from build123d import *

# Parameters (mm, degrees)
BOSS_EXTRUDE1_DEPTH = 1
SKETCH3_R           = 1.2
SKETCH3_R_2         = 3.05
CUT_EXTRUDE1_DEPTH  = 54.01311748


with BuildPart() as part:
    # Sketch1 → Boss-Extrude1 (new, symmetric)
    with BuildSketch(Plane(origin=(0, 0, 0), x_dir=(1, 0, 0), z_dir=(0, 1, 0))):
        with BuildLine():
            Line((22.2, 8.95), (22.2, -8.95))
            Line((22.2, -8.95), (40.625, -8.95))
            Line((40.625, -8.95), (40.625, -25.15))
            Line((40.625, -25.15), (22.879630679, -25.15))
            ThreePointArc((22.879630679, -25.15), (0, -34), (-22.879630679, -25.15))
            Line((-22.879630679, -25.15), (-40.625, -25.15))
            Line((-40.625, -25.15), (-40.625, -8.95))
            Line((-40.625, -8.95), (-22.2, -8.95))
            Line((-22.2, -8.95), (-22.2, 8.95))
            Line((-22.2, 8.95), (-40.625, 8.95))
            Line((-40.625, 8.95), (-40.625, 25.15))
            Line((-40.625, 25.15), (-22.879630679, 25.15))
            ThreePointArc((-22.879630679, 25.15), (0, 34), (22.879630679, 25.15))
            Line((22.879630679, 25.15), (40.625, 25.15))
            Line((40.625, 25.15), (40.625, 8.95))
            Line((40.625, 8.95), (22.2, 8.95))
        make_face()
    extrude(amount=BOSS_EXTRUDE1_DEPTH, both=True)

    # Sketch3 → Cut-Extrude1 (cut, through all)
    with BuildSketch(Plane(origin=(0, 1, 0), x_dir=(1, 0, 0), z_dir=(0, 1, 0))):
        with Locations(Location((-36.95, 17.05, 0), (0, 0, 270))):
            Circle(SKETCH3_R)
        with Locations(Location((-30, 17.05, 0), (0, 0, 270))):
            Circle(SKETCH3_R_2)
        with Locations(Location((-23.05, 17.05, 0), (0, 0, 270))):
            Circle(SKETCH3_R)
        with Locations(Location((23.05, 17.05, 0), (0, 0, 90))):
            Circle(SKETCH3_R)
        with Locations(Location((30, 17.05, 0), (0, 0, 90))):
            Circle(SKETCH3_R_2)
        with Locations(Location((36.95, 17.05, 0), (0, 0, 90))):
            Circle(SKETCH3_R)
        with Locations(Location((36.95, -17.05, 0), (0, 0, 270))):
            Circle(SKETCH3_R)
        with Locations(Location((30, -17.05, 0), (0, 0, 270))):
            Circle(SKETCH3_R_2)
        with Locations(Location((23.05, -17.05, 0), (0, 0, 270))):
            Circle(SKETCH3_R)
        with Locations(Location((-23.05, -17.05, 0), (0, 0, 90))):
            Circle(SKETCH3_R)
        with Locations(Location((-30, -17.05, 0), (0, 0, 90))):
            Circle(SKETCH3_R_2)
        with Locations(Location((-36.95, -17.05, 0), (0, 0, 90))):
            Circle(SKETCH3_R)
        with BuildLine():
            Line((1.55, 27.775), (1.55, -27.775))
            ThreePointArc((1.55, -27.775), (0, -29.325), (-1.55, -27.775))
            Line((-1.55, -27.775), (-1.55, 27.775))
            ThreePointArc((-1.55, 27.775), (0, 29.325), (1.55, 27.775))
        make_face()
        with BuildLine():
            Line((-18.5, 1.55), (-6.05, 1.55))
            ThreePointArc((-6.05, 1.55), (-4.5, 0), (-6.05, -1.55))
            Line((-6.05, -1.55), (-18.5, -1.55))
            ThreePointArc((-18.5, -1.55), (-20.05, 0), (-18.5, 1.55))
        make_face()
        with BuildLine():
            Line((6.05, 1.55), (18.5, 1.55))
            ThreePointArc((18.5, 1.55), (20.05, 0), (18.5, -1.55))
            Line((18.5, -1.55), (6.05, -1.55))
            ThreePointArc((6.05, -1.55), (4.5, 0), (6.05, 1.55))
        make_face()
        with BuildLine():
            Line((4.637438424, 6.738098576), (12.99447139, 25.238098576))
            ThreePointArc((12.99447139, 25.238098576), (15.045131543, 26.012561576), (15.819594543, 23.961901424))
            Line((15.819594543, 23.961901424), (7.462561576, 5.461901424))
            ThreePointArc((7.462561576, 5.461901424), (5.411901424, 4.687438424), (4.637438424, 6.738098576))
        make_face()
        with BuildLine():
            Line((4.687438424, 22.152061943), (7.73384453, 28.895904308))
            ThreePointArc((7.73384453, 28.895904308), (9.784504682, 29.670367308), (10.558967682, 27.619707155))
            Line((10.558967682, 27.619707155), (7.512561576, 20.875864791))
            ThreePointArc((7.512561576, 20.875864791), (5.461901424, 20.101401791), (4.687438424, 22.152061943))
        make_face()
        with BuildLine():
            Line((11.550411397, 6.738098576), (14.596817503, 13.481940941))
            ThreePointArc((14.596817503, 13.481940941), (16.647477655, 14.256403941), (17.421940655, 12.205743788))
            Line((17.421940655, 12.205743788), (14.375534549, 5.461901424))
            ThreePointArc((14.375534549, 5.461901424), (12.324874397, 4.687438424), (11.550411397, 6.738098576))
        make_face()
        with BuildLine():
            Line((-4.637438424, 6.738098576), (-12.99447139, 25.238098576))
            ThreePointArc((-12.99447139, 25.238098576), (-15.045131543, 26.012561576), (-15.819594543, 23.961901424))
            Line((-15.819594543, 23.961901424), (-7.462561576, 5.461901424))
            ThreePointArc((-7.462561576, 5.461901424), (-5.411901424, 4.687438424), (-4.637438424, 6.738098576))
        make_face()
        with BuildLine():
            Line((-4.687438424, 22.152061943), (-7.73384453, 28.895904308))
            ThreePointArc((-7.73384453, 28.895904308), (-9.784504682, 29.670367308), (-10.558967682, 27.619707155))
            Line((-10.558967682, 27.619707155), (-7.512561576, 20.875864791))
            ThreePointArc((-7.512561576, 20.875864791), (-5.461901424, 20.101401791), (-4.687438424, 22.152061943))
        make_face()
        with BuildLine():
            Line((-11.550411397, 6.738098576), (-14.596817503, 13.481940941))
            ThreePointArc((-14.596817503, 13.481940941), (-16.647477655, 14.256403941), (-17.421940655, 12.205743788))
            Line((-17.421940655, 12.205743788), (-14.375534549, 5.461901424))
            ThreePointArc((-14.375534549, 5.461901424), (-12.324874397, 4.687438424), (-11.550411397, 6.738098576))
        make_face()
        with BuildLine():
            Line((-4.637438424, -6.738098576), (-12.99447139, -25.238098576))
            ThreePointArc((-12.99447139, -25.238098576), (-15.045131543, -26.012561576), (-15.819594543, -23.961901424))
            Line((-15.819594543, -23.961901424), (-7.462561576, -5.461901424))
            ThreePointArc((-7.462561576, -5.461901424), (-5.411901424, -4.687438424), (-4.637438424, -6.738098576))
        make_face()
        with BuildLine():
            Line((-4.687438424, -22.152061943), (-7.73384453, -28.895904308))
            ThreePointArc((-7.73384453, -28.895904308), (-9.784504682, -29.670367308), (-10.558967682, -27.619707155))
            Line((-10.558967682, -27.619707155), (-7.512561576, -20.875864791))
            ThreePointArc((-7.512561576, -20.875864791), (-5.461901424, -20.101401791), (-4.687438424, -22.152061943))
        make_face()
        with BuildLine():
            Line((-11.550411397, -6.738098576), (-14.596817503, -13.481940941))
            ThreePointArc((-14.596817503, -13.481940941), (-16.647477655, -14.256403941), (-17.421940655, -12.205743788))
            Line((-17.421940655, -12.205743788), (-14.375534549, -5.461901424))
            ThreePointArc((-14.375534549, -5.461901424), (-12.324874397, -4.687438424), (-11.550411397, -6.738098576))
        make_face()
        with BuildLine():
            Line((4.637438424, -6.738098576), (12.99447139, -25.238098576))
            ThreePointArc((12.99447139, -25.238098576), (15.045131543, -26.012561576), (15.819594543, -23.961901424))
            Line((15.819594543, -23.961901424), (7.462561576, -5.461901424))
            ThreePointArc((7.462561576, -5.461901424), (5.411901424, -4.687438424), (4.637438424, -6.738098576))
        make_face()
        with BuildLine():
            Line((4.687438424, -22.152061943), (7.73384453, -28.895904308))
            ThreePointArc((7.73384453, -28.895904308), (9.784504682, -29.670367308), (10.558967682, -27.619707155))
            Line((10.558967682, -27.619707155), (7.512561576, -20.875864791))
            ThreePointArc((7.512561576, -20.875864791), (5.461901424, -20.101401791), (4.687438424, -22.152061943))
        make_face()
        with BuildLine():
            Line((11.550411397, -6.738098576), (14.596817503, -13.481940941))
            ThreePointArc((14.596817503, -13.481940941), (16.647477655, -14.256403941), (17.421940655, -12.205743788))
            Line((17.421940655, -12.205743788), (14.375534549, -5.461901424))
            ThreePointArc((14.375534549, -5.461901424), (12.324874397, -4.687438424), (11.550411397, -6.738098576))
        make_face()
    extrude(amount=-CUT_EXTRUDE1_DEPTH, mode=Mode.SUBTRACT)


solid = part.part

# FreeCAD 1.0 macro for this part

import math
import FreeCAD as App
import Part
import Sketcher
Q = App.Units.Quantity

doc = App.newDocument("Part")
body = doc.addObject("PartDesign::Body", "Body")

# Sketch on XZ plane
sketch1 = body.newObject("Sketcher::SketchObject", "Sketch")
sketch1.AttachmentSupport = (doc.getObject("XZ_Plane"), [""])
sketch1.MapMode = "FlatFace"
sketch1.addGeometry([
    Part.LineSegment(App.Vector(22, 9, 0), App.Vector(22, -9, 0)),  # 0
    Part.LineSegment(App.Vector(22, -9, 0), App.Vector(41, -9, 0)),  # 1
    Part.LineSegment(App.Vector(41, -9, 0), App.Vector(41, -25, 0)),  # 2
    Part.LineSegment(App.Vector(41, -25, 0), App.Vector(23, -25, 0)),  # 3
    Part.ArcOfCircle(Part.Circle(App.Vector(0, 0, 0), App.Vector(0, 0, 1), 34), math.radians(-132), math.radians(-48)),  # 4
    Part.LineSegment(App.Vector(-23, -25, 0), App.Vector(-41, -25, 0)),  # 5
    Part.LineSegment(App.Vector(-41, -25, 0), App.Vector(-41, -9, 0)),  # 6
    Part.LineSegment(App.Vector(-41, -9, 0), App.Vector(-22, -9, 0)),  # 7
    Part.LineSegment(App.Vector(-22, -9, 0), App.Vector(-22, 9, 0)),  # 8
    Part.LineSegment(App.Vector(-22, 9, 0), App.Vector(-41, 9, 0)),  # 9
    Part.LineSegment(App.Vector(-41, 9, 0), App.Vector(-41, 25, 0)),  # 10
    Part.LineSegment(App.Vector(-41, 25, 0), App.Vector(-23, 25, 0)),  # 11
    Part.ArcOfCircle(Part.Circle(App.Vector(0, 0, 0), App.Vector(0, 0, 1), 34), math.radians(48), math.radians(132)),  # 12
    Part.LineSegment(App.Vector(23, 25, 0), App.Vector(41, 25, 0)),  # 13
    Part.LineSegment(App.Vector(41, 25, 0), App.Vector(41, 9, 0)),  # 14
    Part.LineSegment(App.Vector(41, 9, 0), App.Vector(22, 9, 0)),  # 15
], False)
sketch1.addConstraint([
    Sketcher.Constraint("Coincident", 0, 2, 1, 1),
    Sketcher.Constraint("Coincident", 1, 2, 2, 1),
    Sketcher.Constraint("Coincident", 2, 2, 3, 1),
    Sketcher.Constraint("Coincident", 3, 2, 4, 2),
    Sketcher.Constraint("Coincident", 4, 1, 5, 1),
    Sketcher.Constraint("Coincident", 5, 2, 6, 1),
    Sketcher.Constraint("Coincident", 6, 2, 7, 1),
    Sketcher.Constraint("Coincident", 7, 2, 8, 1),
    Sketcher.Constraint("Coincident", 8, 2, 9, 1),
    Sketcher.Constraint("Coincident", 9, 2, 10, 1),
    Sketcher.Constraint("Coincident", 10, 2, 11, 1),
    Sketcher.Constraint("Coincident", 11, 2, 12, 2),
    Sketcher.Constraint("Coincident", 12, 1, 13, 1),
    Sketcher.Constraint("Coincident", 13, 2, 14, 1),
    Sketcher.Constraint("Coincident", 14, 2, 15, 1),
    Sketcher.Constraint("Coincident", 15, 2, 0, 1),
    Sketcher.Constraint("Vertical", 0),
    Sketcher.Constraint("Horizontal", 1),
    Sketcher.Constraint("Vertical", 2),
    Sketcher.Constraint("Horizontal", 3),
    Sketcher.Constraint("Horizontal", 5),
    Sketcher.Constraint("Vertical", 6),
    Sketcher.Constraint("Horizontal", 7),
    Sketcher.Constraint("Vertical", 8),
    Sketcher.Constraint("Horizontal", 9),
    Sketcher.Constraint("Vertical", 10),
    Sketcher.Constraint("Horizontal", 11),
    Sketcher.Constraint("Horizontal", 13),
    Sketcher.Constraint("Vertical", 14),
    Sketcher.Constraint("Horizontal", 15),
    Sketcher.Constraint("Coincident", 4, 3, -1, 1),
    Sketcher.Constraint("Coincident", 12, 3, -1, 1),
    Sketcher.Constraint("Equal", 4, 12),
    Sketcher.Constraint("Symmetric", 0, 2, 8, 2, -1, 1),
    Sketcher.Constraint("Symmetric", 2, 2, 10, 2, -1, 1),
    Sketcher.Constraint("Symmetric", 5, 2, 13, 2, -1, 1),
    Sketcher.Constraint("Symmetric", 2, 2, 5, 2, -2),
    Sketcher.Constraint("Horizontal", 1, 2, 6, 2),
    Sketcher.Constraint("Horizontal", 9, 2, 14, 2),
    Sketcher.Constraint("Radius", 4, Q("34 mm")),
    Sketcher.Constraint("DistanceY", 0, 2, 0, 1, Q("17.9 mm")),
    Sketcher.Constraint("DistanceY", 2, 2, 2, 1, Q("16.2 mm")),
    Sketcher.Constraint("DistanceX", -1, 1, 0, 2, Q("22.2 mm")),
    Sketcher.Constraint("DistanceX", 1, 1, 1, 2, Q("18.425 mm")),
])
pad1 = body.newObject("PartDesign::Pad", "Pad")
pad1.Profile = sketch1
pad1.Length = 2
pad1.Midplane = True

# Sketch on XZ plane
sketch2 = body.newObject("Sketcher::SketchObject", "Sketch001")
sketch2.AttachmentSupport = (doc.getObject("XZ_Plane"), [""])
sketch2.MapMode = "FlatFace"
sketch2.AttachmentOffset = App.Placement(App.Vector(0, 0, -1), App.Rotation())
sketch2.addGeometry([
    Part.Circle(App.Vector(-37, -17.1, 0), App.Vector(0, 0, 1), 1.2),  # 0
    Part.Circle(App.Vector(-30, -17.1, 0), App.Vector(0, 0, 1), 3),  # 1
    Part.Circle(App.Vector(-23.1, -17.1, 0), App.Vector(0, 0, 1), 1.2),  # 2
    Part.Circle(App.Vector(23.1, -17.1, 0), App.Vector(0, 0, 1), 1.2),  # 3
    Part.Circle(App.Vector(30, -17.1, 0), App.Vector(0, 0, 1), 3),  # 4
    Part.Circle(App.Vector(37, -17.1, 0), App.Vector(0, 0, 1), 1.2),  # 5
    Part.Circle(App.Vector(37, 17.1, 0), App.Vector(0, 0, 1), 1.2),  # 6
    Part.Circle(App.Vector(30, 17.1, 0), App.Vector(0, 0, 1), 3),  # 7
    Part.Circle(App.Vector(23.1, 17.1, 0), App.Vector(0, 0, 1), 1.2),  # 8
    Part.Circle(App.Vector(-23.1, 17.1, 0), App.Vector(0, 0, 1), 1.2),  # 9
    Part.Circle(App.Vector(-30, 17.1, 0), App.Vector(0, 0, 1), 3),  # 10
    Part.Circle(App.Vector(-37, 17.1, 0), App.Vector(0, 0, 1), 1.2),  # 11
    Part.LineSegment(App.Vector(1.6, 27.8, 0), App.Vector(1.6, -27.8, 0)),  # 12
    Part.ArcOfCircle(Part.Circle(App.Vector(0, -27.8, 0), App.Vector(0, 0, 1), 1.6), math.radians(180), math.radians(360)),  # 13
    Part.LineSegment(App.Vector(-1.6, -27.8, 0), App.Vector(-1.6, 27.8, 0)),  # 14
    Part.ArcOfCircle(Part.Circle(App.Vector(0, 27.8, 0), App.Vector(0, 0, 1), 1.6), math.radians(0), math.radians(180)),  # 15
    Part.LineSegment(App.Vector(-6, -1.6, 0), App.Vector(-18.5, -1.6, 0)),  # 16
    Part.ArcOfCircle(Part.Circle(App.Vector(-18.5, 0, 0), App.Vector(0, 0, 1), 1.6), math.radians(90), math.radians(270)),  # 17
    Part.LineSegment(App.Vector(-18.5, 1.6, 0), App.Vector(-6, 1.6, 0)),  # 18
    Part.ArcOfCircle(Part.Circle(App.Vector(-6, 0, 0), App.Vector(0, 0, 1), 1.6), math.radians(-90), math.radians(90)),  # 19
    Part.LineSegment(App.Vector(18.5, -1.6, 0), App.Vector(6, -1.6, 0)),  # 20
    Part.ArcOfCircle(Part.Circle(App.Vector(6, 0, 0), App.Vector(0, 0, 1), 1.6), math.radians(90), math.radians(270)),  # 21
    Part.LineSegment(App.Vector(6, 1.6, 0), App.Vector(18.5, 1.6, 0)),  # 22
    Part.ArcOfCircle(Part.Circle(App.Vector(18.5, 0, 0), App.Vector(0, 0, 1), 1.6), math.radians(-90), math.radians(90)),  # 23
    Part.LineSegment(App.Vector(13, -25.2, 0), App.Vector(4.6, -6.7, 0)),  # 24
    Part.ArcOfCircle(Part.Circle(App.Vector(6, -6.1, 0), App.Vector(0, 0, 1), 1.6), math.radians(24), math.radians(204)),  # 25
    Part.LineSegment(App.Vector(7.5, -5.5, 0), App.Vector(15.8, -24, 0)),  # 26
    Part.ArcOfCircle(Part.Circle(App.Vector(14.4, -24.6, 0), App.Vector(0, 0, 1), 1.6), math.radians(-156), math.radians(24)),  # 27
    Part.LineSegment(App.Vector(7.7, -28.9, 0), App.Vector(4.7, -22.2, 0)),  # 28
    Part.ArcOfCircle(Part.Circle(App.Vector(6.1, -21.5, 0), App.Vector(0, 0, 1), 1.6), math.radians(24), math.radians(204)),  # 29
    Part.LineSegment(App.Vector(7.5, -20.9, 0), App.Vector(10.6, -27.6, 0)),  # 30
    Part.ArcOfCircle(Part.Circle(App.Vector(9.1, -28.3, 0), App.Vector(0, 0, 1), 1.6), math.radians(-156), math.radians(24)),  # 31
    Part.LineSegment(App.Vector(14.6, -13.5, 0), App.Vector(11.6, -6.7, 0)),  # 32
    Part.ArcOfCircle(Part.Circle(App.Vector(13, -6.1, 0), App.Vector(0, 0, 1), 1.6), math.radians(24), math.radians(204)),  # 33
    Part.LineSegment(App.Vector(14.4, -5.5, 0), App.Vector(17.4, -12.2, 0)),  # 34
    Part.ArcOfCircle(Part.Circle(App.Vector(16, -12.8, 0), App.Vector(0, 0, 1), 1.6), math.radians(-156), math.radians(24)),  # 35
    Part.LineSegment(App.Vector(-4.6, -6.7, 0), App.Vector(-13, -25.2, 0)),  # 36
    Part.ArcOfCircle(Part.Circle(App.Vector(-14.4, -24.6, 0), App.Vector(0, 0, 1), 1.6), math.radians(156), math.radians(336)),  # 37
    Part.LineSegment(App.Vector(-15.8, -24, 0), App.Vector(-7.5, -5.5, 0)),  # 38
    Part.ArcOfCircle(Part.Circle(App.Vector(-6, -6.1, 0), App.Vector(0, 0, 1), 1.6), math.radians(-24), math.radians(156)),  # 39
    Part.LineSegment(App.Vector(-4.7, -22.2, 0), App.Vector(-7.7, -28.9, 0)),  # 40
    Part.ArcOfCircle(Part.Circle(App.Vector(-9.1, -28.3, 0), App.Vector(0, 0, 1), 1.6), math.radians(156), math.radians(336)),  # 41
    Part.LineSegment(App.Vector(-10.6, -27.6, 0), App.Vector(-7.5, -20.9, 0)),  # 42
    Part.ArcOfCircle(Part.Circle(App.Vector(-6.1, -21.5, 0), App.Vector(0, 0, 1), 1.6), math.radians(-24), math.radians(156)),  # 43
    Part.LineSegment(App.Vector(-11.6, -6.7, 0), App.Vector(-14.6, -13.5, 0)),  # 44
    Part.ArcOfCircle(Part.Circle(App.Vector(-16, -12.8, 0), App.Vector(0, 0, 1), 1.6), math.radians(156), math.radians(336)),  # 45
    Part.LineSegment(App.Vector(-17.4, -12.2, 0), App.Vector(-14.4, -5.5, 0)),  # 46
    Part.ArcOfCircle(Part.Circle(App.Vector(-13, -6.1, 0), App.Vector(0, 0, 1), 1.6), math.radians(-24), math.radians(156)),  # 47
    Part.LineSegment(App.Vector(-13, 25.2, 0), App.Vector(-4.6, 6.7, 0)),  # 48
    Part.ArcOfCircle(Part.Circle(App.Vector(-6, 6.1, 0), App.Vector(0, 0, 1), 1.6), math.radians(-156), math.radians(24)),  # 49
    Part.LineSegment(App.Vector(-7.5, 5.5, 0), App.Vector(-15.8, 24, 0)),  # 50
    Part.ArcOfCircle(Part.Circle(App.Vector(-14.4, 24.6, 0), App.Vector(0, 0, 1), 1.6), math.radians(24), math.radians(204)),  # 51
    Part.LineSegment(App.Vector(-7.7, 28.9, 0), App.Vector(-4.7, 22.2, 0)),  # 52
    Part.ArcOfCircle(Part.Circle(App.Vector(-6.1, 21.5, 0), App.Vector(0, 0, 1), 1.6), math.radians(-156), math.radians(24)),  # 53
    Part.LineSegment(App.Vector(-7.5, 20.9, 0), App.Vector(-10.6, 27.6, 0)),  # 54
    Part.ArcOfCircle(Part.Circle(App.Vector(-9.1, 28.3, 0), App.Vector(0, 0, 1), 1.6), math.radians(24), math.radians(204)),  # 55
    Part.LineSegment(App.Vector(-14.6, 13.5, 0), App.Vector(-11.6, 6.7, 0)),  # 56
    Part.ArcOfCircle(Part.Circle(App.Vector(-13, 6.1, 0), App.Vector(0, 0, 1), 1.6), math.radians(-156), math.radians(24)),  # 57
    Part.LineSegment(App.Vector(-14.4, 5.5, 0), App.Vector(-17.4, 12.2, 0)),  # 58
    Part.ArcOfCircle(Part.Circle(App.Vector(-16, 12.8, 0), App.Vector(0, 0, 1), 1.6), math.radians(24), math.radians(204)),  # 59
    Part.LineSegment(App.Vector(4.6, 6.7, 0), App.Vector(13, 25.2, 0)),  # 60
    Part.ArcOfCircle(Part.Circle(App.Vector(14.4, 24.6, 0), App.Vector(0, 0, 1), 1.6), math.radians(-24), math.radians(156)),  # 61
    Part.LineSegment(App.Vector(15.8, 24, 0), App.Vector(7.5, 5.5, 0)),  # 62
    Part.ArcOfCircle(Part.Circle(App.Vector(6, 6.1, 0), App.Vector(0, 0, 1), 1.6), math.radians(156), math.radians(336)),  # 63
    Part.LineSegment(App.Vector(4.7, 22.2, 0), App.Vector(7.7, 28.9, 0)),  # 64
    Part.ArcOfCircle(Part.Circle(App.Vector(9.1, 28.3, 0), App.Vector(0, 0, 1), 1.6), math.radians(-24), math.radians(156)),  # 65
    Part.LineSegment(App.Vector(10.6, 27.6, 0), App.Vector(7.5, 20.9, 0)),  # 66
    Part.ArcOfCircle(Part.Circle(App.Vector(6.1, 21.5, 0), App.Vector(0, 0, 1), 1.6), math.radians(156), math.radians(336)),  # 67
    Part.LineSegment(App.Vector(11.6, 6.7, 0), App.Vector(14.6, 13.5, 0)),  # 68
    Part.ArcOfCircle(Part.Circle(App.Vector(16, 12.8, 0), App.Vector(0, 0, 1), 1.6), math.radians(-24), math.radians(156)),  # 69
    Part.LineSegment(App.Vector(17.4, 12.2, 0), App.Vector(14.4, 5.5, 0)),  # 70
    Part.ArcOfCircle(Part.Circle(App.Vector(13, 6.1, 0), App.Vector(0, 0, 1), 1.6), math.radians(156), math.radians(336)),  # 71
], False)
sketch2.addConstraint([
    Sketcher.Constraint("Tangent", 12, 2, 13, 2),
    Sketcher.Constraint("Tangent", 13, 1, 14, 1),
    Sketcher.Constraint("Tangent", 14, 2, 15, 2),
    Sketcher.Constraint("Tangent", 15, 1, 12, 1),
    Sketcher.Constraint("Tangent", 16, 2, 17, 2),
    Sketcher.Constraint("Tangent", 17, 1, 18, 1),
    Sketcher.Constraint("Tangent", 18, 2, 19, 2),
    Sketcher.Constraint("Tangent", 19, 1, 16, 1),
    Sketcher.Constraint("Tangent", 20, 2, 21, 2),
    Sketcher.Constraint("Tangent", 21, 1, 22, 1),
    Sketcher.Constraint("Tangent", 22, 2, 23, 2),
    Sketcher.Constraint("Tangent", 23, 1, 20, 1),
    Sketcher.Constraint("Tangent", 24, 2, 25, 2),
    Sketcher.Constraint("Tangent", 25, 1, 26, 1),
    Sketcher.Constraint("Tangent", 26, 2, 27, 2),
    Sketcher.Constraint("Tangent", 27, 1, 24, 1),
    Sketcher.Constraint("Tangent", 28, 2, 29, 2),
    Sketcher.Constraint("Tangent", 29, 1, 30, 1),
    Sketcher.Constraint("Tangent", 30, 2, 31, 2),
    Sketcher.Constraint("Tangent", 31, 1, 28, 1),
    Sketcher.Constraint("Tangent", 32, 2, 33, 2),
    Sketcher.Constraint("Tangent", 33, 1, 34, 1),
    Sketcher.Constraint("Tangent", 34, 2, 35, 2),
    Sketcher.Constraint("Tangent", 35, 1, 32, 1),
    Sketcher.Constraint("Tangent", 36, 2, 37, 2),
    Sketcher.Constraint("Tangent", 37, 1, 38, 1),
    Sketcher.Constraint("Tangent", 38, 2, 39, 2),
    Sketcher.Constraint("Tangent", 39, 1, 36, 1),
    Sketcher.Constraint("Tangent", 40, 2, 41, 2),
    Sketcher.Constraint("Tangent", 41, 1, 42, 1),
    Sketcher.Constraint("Tangent", 42, 2, 43, 2),
    Sketcher.Constraint("Tangent", 43, 1, 40, 1),
    Sketcher.Constraint("Tangent", 44, 2, 45, 2),
    Sketcher.Constraint("Tangent", 45, 1, 46, 1),
    Sketcher.Constraint("Tangent", 46, 2, 47, 2),
    Sketcher.Constraint("Tangent", 47, 1, 44, 1),
    Sketcher.Constraint("Tangent", 48, 2, 49, 2),
    Sketcher.Constraint("Tangent", 49, 1, 50, 1),
    Sketcher.Constraint("Tangent", 50, 2, 51, 2),
    Sketcher.Constraint("Tangent", 51, 1, 48, 1),
    Sketcher.Constraint("Tangent", 52, 2, 53, 2),
    Sketcher.Constraint("Tangent", 53, 1, 54, 1),
    Sketcher.Constraint("Tangent", 54, 2, 55, 2),
    Sketcher.Constraint("Tangent", 55, 1, 52, 1),
    Sketcher.Constraint("Tangent", 56, 2, 57, 2),
    Sketcher.Constraint("Tangent", 57, 1, 58, 1),
    Sketcher.Constraint("Tangent", 58, 2, 59, 2),
    Sketcher.Constraint("Tangent", 59, 1, 56, 1),
    Sketcher.Constraint("Tangent", 60, 2, 61, 2),
    Sketcher.Constraint("Tangent", 61, 1, 62, 1),
    Sketcher.Constraint("Tangent", 62, 2, 63, 2),
    Sketcher.Constraint("Tangent", 63, 1, 60, 1),
    Sketcher.Constraint("Tangent", 64, 2, 65, 2),
    Sketcher.Constraint("Tangent", 65, 1, 66, 1),
    Sketcher.Constraint("Tangent", 66, 2, 67, 2),
    Sketcher.Constraint("Tangent", 67, 1, 64, 1),
    Sketcher.Constraint("Tangent", 68, 2, 69, 2),
    Sketcher.Constraint("Tangent", 69, 1, 70, 1),
    Sketcher.Constraint("Tangent", 70, 2, 71, 2),
    Sketcher.Constraint("Tangent", 71, 1, 68, 1),
    Sketcher.Constraint("Vertical", 12),
    Sketcher.Constraint("Vertical", 14),
    Sketcher.Constraint("Horizontal", 16),
    Sketcher.Constraint("Horizontal", 18),
    Sketcher.Constraint("Horizontal", 20),
    Sketcher.Constraint("Horizontal", 22),
    Sketcher.Constraint("Equal", 0, 2),
    Sketcher.Constraint("Equal", 2, 3),
    Sketcher.Constraint("Equal", 1, 4),
    Sketcher.Constraint("Equal", 3, 5),
    Sketcher.Constraint("Equal", 5, 6),
    Sketcher.Constraint("Equal", 4, 7),
    Sketcher.Constraint("Equal", 6, 8),
    Sketcher.Constraint("Equal", 8, 9),
    Sketcher.Constraint("Equal", 7, 10),
    Sketcher.Constraint("Equal", 9, 11),
    Sketcher.Constraint("Equal", 15, 17),
    Sketcher.Constraint("Equal", 19, 21),
    Sketcher.Constraint("Equal", 23, 25),
    Sketcher.Constraint("Equal", 25, 27),
    Sketcher.Constraint("Equal", 27, 29),
    Sketcher.Constraint("Equal", 29, 31),
    Sketcher.Constraint("Equal", 31, 33),
    Sketcher.Constraint("Equal", 33, 35),
    Sketcher.Constraint("Equal", 35, 37),
    Sketcher.Constraint("Equal", 37, 39),
    Sketcher.Constraint("Equal", 39, 41),
    Sketcher.Constraint("Equal", 41, 43),
    Sketcher.Constraint("Equal", 43, 45),
    Sketcher.Constraint("Equal", 45, 47),
    Sketcher.Constraint("Equal", 47, 49),
    Sketcher.Constraint("Equal", 49, 51),
    Sketcher.Constraint("Equal", 51, 53),
    Sketcher.Constraint("Equal", 53, 55),
    Sketcher.Constraint("Equal", 55, 57),
    Sketcher.Constraint("Equal", 57, 59),
    Sketcher.Constraint("Equal", 59, 61),
    Sketcher.Constraint("Equal", 61, 63),
    Sketcher.Constraint("Equal", 63, 65),
    Sketcher.Constraint("Equal", 65, 67),
    Sketcher.Constraint("Equal", 67, 69),
    Sketcher.Constraint("Equal", 69, 71),
    Sketcher.Constraint("Symmetric", 0, 3, 6, 3, -1, 1),
    Sketcher.Constraint("Symmetric", 1, 3, 7, 3, -1, 1),
    Sketcher.Constraint("Symmetric", 2, 3, 8, 3, -1, 1),
    Sketcher.Constraint("Symmetric", 3, 3, 9, 3, -1, 1),
    Sketcher.Constraint("Symmetric", 4, 3, 10, 3, -1, 1),
    Sketcher.Constraint("Symmetric", 5, 3, 11, 3, -1, 1),
    Sketcher.Constraint("Symmetric", 13, 3, 15, 3, -1, 1),
    Sketcher.Constraint("Symmetric", 19, 3, 21, 3, -1, 1),
    Sketcher.Constraint("Symmetric", 25, 3, 49, 3, -1, 1),
    Sketcher.Constraint("Symmetric", 27, 3, 51, 3, -1, 1),
    Sketcher.Constraint("Symmetric", 29, 3, 53, 3, -1, 1),
    Sketcher.Constraint("Symmetric", 31, 3, 55, 3, -1, 1),
    Sketcher.Constraint("Symmetric", 33, 3, 57, 3, -1, 1),
    Sketcher.Constraint("Symmetric", 35, 3, 59, 3, -1, 1),
    Sketcher.Constraint("Symmetric", 37, 3, 61, 3, -1, 1),
    Sketcher.Constraint("Symmetric", 39, 3, 63, 3, -1, 1),
    Sketcher.Constraint("Symmetric", 41, 3, 65, 3, -1, 1),
    Sketcher.Constraint("Symmetric", 43, 3, 67, 3, -1, 1),
    Sketcher.Constraint("Symmetric", 45, 3, 69, 3, -1, 1),
    Sketcher.Constraint("Symmetric", 47, 3, 71, 3, -1, 1),
    Sketcher.Constraint("Symmetric", 2, 3, 3, 3, -2),
    Sketcher.Constraint("Symmetric", 1, 3, 4, 3, -2),
    Sketcher.Constraint("Symmetric", 0, 3, 5, 3, -2),
    Sketcher.Constraint("Symmetric", 17, 3, 23, 3, -2),
    Sketcher.Constraint("Symmetric", 27, 3, 37, 3, -2),
    Sketcher.Constraint("Symmetric", 25, 3, 39, 3, -2),
    Sketcher.Constraint("Symmetric", 31, 3, 41, 3, -2),
    Sketcher.Constraint("Symmetric", 29, 3, 43, 3, -2),
    Sketcher.Constraint("Symmetric", 35, 3, 45, 3, -2),
    Sketcher.Constraint("Symmetric", 33, 3, 47, 3, -2),
    Sketcher.Constraint("Parallel", 26, 28),
    Sketcher.Constraint("Parallel", 30, 32),
    Sketcher.Constraint("Horizontal", 0, 3, 1, 3),
    Sketcher.Constraint("Horizontal", 1, 3, 2, 3),
    Sketcher.Constraint("Horizontal", 25, 3, 33, 3),
    Sketcher.Constraint("Vertical", 21, 3, 25, 3),
    Sketcher.Constraint("Equal", 30, 32),
    Sketcher.Constraint("Diameter", 0, Q("2.4 mm")),
    Sketcher.Constraint("Diameter", 1, Q("6.1 mm")),
    Sketcher.Constraint("Radius", 13, Q("1.55 mm")),
    Sketcher.Constraint("DistanceX", 1, 3, -1, 1, Q("30 mm")),
    Sketcher.Constraint("Distance", 24, Q("20.3 mm")),
    Sketcher.Constraint("Distance", 28, Q("7.4 mm")),
    Sketcher.Constraint("DistanceX", 16, 2, 16, 1, Q("12.45 mm")),
    Sketcher.Constraint("DistanceY", 12, 2, 12, 1, Q("55.55 mm")),
    Sketcher.Constraint("DistanceX", 17, 3, -1, 1, Q("18.5 mm")),
    Sketcher.Constraint("DistanceY", 25, 3, -1, 1, Q("6.1 mm")),
    Sketcher.Constraint("DistanceY", 27, 3, -1, 1, Q("24.6 mm")),
    Sketcher.Constraint("DistanceX", -1, 1, 29, 3, Q("6.1 mm")),
    Sketcher.Constraint("DistanceX", 0, 3, -1, 1, Q("36.95 mm")),
    Sketcher.Constraint("DistanceY", 0, 3, -1, 1, Q("17.05 mm")),
    Sketcher.Constraint("DistanceX", 2, 3, -1, 1, Q("23.05 mm")),
    Sketcher.Constraint("DistanceX", -1, 1, 35, 3, Q("16.009379 mm")),
    Sketcher.Constraint("DistanceY", 28, 2, -1, 1, Q("22.152062 mm")),
])
pocket1 = body.newObject("PartDesign::Pocket", "Pocket")
pocket1.Profile = sketch2
pocket1.Type = "ThroughAll"
pocket1.Reversed = True

doc.recompute()
